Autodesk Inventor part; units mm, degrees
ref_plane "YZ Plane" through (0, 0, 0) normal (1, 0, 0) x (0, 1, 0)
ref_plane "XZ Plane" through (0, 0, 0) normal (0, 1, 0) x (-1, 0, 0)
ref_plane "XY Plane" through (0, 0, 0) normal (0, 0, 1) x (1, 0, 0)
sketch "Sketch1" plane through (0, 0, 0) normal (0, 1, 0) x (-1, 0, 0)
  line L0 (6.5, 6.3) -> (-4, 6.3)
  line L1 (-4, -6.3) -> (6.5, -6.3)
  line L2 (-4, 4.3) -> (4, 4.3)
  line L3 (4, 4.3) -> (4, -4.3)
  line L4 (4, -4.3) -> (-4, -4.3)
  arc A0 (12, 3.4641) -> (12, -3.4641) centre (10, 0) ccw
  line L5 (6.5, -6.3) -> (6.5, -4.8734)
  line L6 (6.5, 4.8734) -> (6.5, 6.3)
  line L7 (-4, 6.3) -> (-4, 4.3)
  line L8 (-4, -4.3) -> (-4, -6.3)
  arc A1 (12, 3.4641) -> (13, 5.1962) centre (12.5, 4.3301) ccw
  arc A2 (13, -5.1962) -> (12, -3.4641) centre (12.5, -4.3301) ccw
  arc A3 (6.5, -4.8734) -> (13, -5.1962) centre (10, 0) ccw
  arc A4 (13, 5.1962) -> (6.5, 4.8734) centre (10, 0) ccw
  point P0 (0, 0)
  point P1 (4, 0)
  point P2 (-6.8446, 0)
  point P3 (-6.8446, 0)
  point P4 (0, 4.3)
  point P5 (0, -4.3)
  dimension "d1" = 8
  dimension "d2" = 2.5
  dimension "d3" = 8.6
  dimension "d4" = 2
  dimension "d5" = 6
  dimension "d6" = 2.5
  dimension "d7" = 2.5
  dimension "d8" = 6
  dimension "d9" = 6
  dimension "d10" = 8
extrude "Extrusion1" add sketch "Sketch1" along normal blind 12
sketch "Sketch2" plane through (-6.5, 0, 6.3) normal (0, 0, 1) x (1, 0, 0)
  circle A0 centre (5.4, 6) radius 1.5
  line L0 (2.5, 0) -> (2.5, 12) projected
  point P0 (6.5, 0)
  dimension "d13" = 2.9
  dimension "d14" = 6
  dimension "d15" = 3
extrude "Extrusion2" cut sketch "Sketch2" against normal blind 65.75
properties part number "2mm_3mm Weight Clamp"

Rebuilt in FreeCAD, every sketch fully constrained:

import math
import FreeCAD as App
import Part
import Sketcher

V = App.Vector

doc = App.newDocument("Part")
body = doc.addObject("PartDesign::Body", "Body")

# Sketch on XZ plane
sketch1 = body.newObject("Sketcher::SketchObject", "Sketch")
sketch1.AttachmentSupport = (doc.getObject("XZ_Plane"), [""])
sketch1.MapMode = "FlatFace"
sketch1.addGeometry(Part.LineSegment(V(-6.5, 4.9, 0), V(-6.5, 6.3, 0)), False)
sketch1.addGeometry(Part.LineSegment(V(-6.5, 6.3, 0), V(4, 6.3, 0)), False)
sketch1.addGeometry(Part.LineSegment(V(4, 6.3, 0), V(4, 4.3, 0)), False)
sketch1.addGeometry(Part.LineSegment(V(4, 4.3, 0), V(-4, 4.3, 0)), False)
sketch1.addGeometry(Part.LineSegment(V(-4, 4.3, 0), V(-4, -4.3, 0)), False)
sketch1.addGeometry(Part.LineSegment(V(-4, -4.3, 0), V(4, -4.3, 0)), False)
sketch1.addGeometry(Part.LineSegment(V(4, -4.3, 0), V(4, -6.3, 0)), False)
sketch1.addGeometry(Part.LineSegment(V(4, -6.3, 0), V(-6.5, -6.3, 0)), False)
sketch1.addGeometry(Part.LineSegment(V(-6.5, -6.3, 0), V(-6.5, -4.9, 0)), False)
sketch1.addGeometry(Part.ArcOfCircle(Part.Circle(V(-10, 0, 0), V(0, 0, 1), 6), math.radians(-120), math.radians(-54)), False)
sketch1.addGeometry(Part.ArcOfCircle(Part.Circle(V(-12.5, -4.3, 0), V(0, 0, 1), 1), math.radians(60), math.radians(240)), False)
sketch1.addGeometry(Part.ArcOfCircle(Part.Circle(V(-10, 0, 0), V(0, 0, 1), 4), math.radians(-120), math.radians(120)), False)
sketch1.addGeometry(Part.ArcOfCircle(Part.Circle(V(-12.5, 4.3, 0), V(0, 0, 1), 1), math.radians(120), math.radians(300)), False)
sketch1.addGeometry(Part.ArcOfCircle(Part.Circle(V(-10, 0, 0), V(0, 0, 1), 6), math.radians(54), math.radians(120)), False)
sketch1.addConstraint(Sketcher.Constraint("Coincident", 0, 2, 1, 1))
sketch1.addConstraint(Sketcher.Constraint("Coincident", 1, 2, 2, 1))
sketch1.addConstraint(Sketcher.Constraint("Coincident", 2, 2, 3, 1))
sketch1.addConstraint(Sketcher.Constraint("Coincident", 3, 2, 4, 1))
sketch1.addConstraint(Sketcher.Constraint("Coincident", 4, 2, 5, 1))
sketch1.addConstraint(Sketcher.Constraint("Coincident", 5, 2, 6, 1))
sketch1.addConstraint(Sketcher.Constraint("Coincident", 6, 2, 7, 1))
sketch1.addConstraint(Sketcher.Constraint("Coincident", 7, 2, 8, 1))
sketch1.addConstraint(Sketcher.Constraint("Coincident", 8, 2, 9, 2))
sketch1.addConstraint(Sketcher.Constraint("Tangent", 9, 1, 10, 2))
sketch1.addConstraint(Sketcher.Constraint("Tangent", 10, 1, 11, 1))
sketch1.addConstraint(Sketcher.Constraint("Tangent", 11, 2, 12, 2))
sketch1.addConstraint(Sketcher.Constraint("Tangent", 12, 1, 13, 2))
sketch1.addConstraint(Sketcher.Constraint("Coincident", 13, 1, 0, 1))
sketch1.addConstraint(Sketcher.Constraint("Vertical", 0))
sketch1.addConstraint(Sketcher.Constraint("Horizontal", 1))
sketch1.addConstraint(Sketcher.Constraint("Vertical", 2))
sketch1.addConstraint(Sketcher.Constraint("Horizontal", 3))
sketch1.addConstraint(Sketcher.Constraint("Vertical", 4))
sketch1.addConstraint(Sketcher.Constraint("Horizontal", 5))
sketch1.addConstraint(Sketcher.Constraint("Vertical", 6))
sketch1.addConstraint(Sketcher.Constraint("Horizontal", 7))
sketch1.addConstraint(Sketcher.Constraint("Vertical", 8))
sketch1.addConstraint(Sketcher.Constraint("Coincident", 11, 3, 9, 3))
sketch1.addConstraint(Sketcher.Constraint("Coincident", 13, 3, 9, 3))
sketch1.addConstraint(Sketcher.Constraint("Equal", 10, 12))
sketch1.addConstraint(Sketcher.Constraint("Symmetric", 2, 2, 4, 2, -1, 1))
sketch1.addConstraint(Sketcher.Constraint("Symmetric", 10, 3, 12, 3, -1))
sketch1.addConstraint(Sketcher.Constraint("Symmetric", 1, 2, 6, 2, -1))
sketch1.addConstraint(Sketcher.Constraint("Vertical", 0, 2, 7, 2))
sketch1.addConstraint(Sketcher.Constraint("Radius", 9, 6.0))
sketch1.addConstraint(Sketcher.Constraint("Radius", 10, 1.0))
sketch1.addConstraint(Sketcher.Constraint("DistanceX", 3, 2, 3, 1, 8.0))
sketch1.addConstraint(Sketcher.Constraint("DistanceY", 2, 2, 2, 1, 2.0))
sketch1.addConstraint(Sketcher.Constraint("DistanceY", 4, 2, 4, 1, 8.6))
sketch1.addConstraint(Sketcher.Constraint("DistanceX", 12, 3, 0, 2, 6.0))
sketch1.addConstraint(Sketcher.Constraint("DistanceX", 9, 3, 3, 2, 6.0))
sketch1.addConstraint(Sketcher.Constraint("DistanceX", 10, 1, 9, 3, 2.0))
pad1 = body.newObject("PartDesign::Pad", "Pad")
pad1.Profile = sketch1
pad1.Length = 12
pad1.Reversed = True

# Sketch on XY plane
sketch2 = body.newObject("Sketcher::SketchObject", "Sketch001")
sketch2.AttachmentSupport = (doc.getObject("XY_Plane"), [""])
sketch2.MapMode = "FlatFace"
sketch2.AttachmentOffset = App.Placement(V(0, 0, 6.3), App.Rotation())
sketch2.addGeometry(Part.Circle(V(-1.1, 6, 0), V(0, 0, 1), 1.5), False)
sketch2.addConstraint(Sketcher.Constraint("Diameter", 0, 3.0))
sketch2.addConstraint(Sketcher.Constraint("DistanceY", -1, 1, 0, 3, 6.0))
sketch2.addConstraint(Sketcher.Constraint("DistanceX", 0, 3, -1, 1, 1.1))
pocket1 = body.newObject("PartDesign::Pocket", "Pocket")
pocket1.Profile = sketch2
pocket1.Length = 65.75

doc.recompute()
